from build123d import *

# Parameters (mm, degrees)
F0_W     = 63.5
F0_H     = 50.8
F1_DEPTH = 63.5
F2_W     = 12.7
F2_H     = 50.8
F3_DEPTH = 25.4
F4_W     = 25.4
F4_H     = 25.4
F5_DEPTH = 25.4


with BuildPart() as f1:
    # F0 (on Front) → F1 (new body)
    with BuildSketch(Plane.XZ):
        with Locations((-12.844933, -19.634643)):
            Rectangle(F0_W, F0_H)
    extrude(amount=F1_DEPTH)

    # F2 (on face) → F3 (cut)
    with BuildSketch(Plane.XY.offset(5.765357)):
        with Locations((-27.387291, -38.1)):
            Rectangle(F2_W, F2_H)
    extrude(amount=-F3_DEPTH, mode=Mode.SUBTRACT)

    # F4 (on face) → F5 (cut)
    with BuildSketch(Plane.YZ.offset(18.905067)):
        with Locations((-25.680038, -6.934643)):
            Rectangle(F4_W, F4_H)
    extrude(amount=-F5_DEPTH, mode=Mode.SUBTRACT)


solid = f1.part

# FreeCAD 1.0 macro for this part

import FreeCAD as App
import Part
import Sketcher

V = App.Vector
Q = App.Units.Quantity


def add_polygon(sketch, points):
    """Adds a closed chain of lines whose ends are joined by coincident constraints."""
    first, n = sketch.GeometryCount, len(points)
    for a, b in zip(points, points[1:] + points[:1]):
        sketch.addGeometry(Part.LineSegment(App.Vector(*a, 0), App.Vector(*b, 0)), False)
    for i in range(n):
        sketch.addConstraint(Sketcher.Constraint("Coincident", first + i, 2, first + (i + 1) % n, 1))

doc = App.newDocument("Part")
body = doc.addObject("PartDesign::Body", "Body")

sketch1 = doc.addObject("Sketcher::SketchObject", "Sketch")
body.addObject(sketch1)
sketch1.AttachmentSupport = (doc.XZ_Plane, [""])
sketch1.MapMode = "FlatFace"
add_polygon(sketch1, [(-45, 6), (-45, -45), (19, -45), (19, 6)])
sketch1.addConstraint([
    Sketcher.Constraint("Vertical", 0),
    Sketcher.Constraint("Horizontal", 1),
    Sketcher.Constraint("Vertical", 2),
    Sketcher.Constraint("Horizontal", 3),
    Sketcher.Constraint("DistanceY", 0, 2, 0, 1, Q("2 in")),
    Sketcher.Constraint("DistanceX", 1, 1, 1, 2, Q("2.5 in")),
    Sketcher.Constraint("DistanceX", 0, 2, -1, 1, 44.594933),
    Sketcher.Constraint("DistanceY", 0, 2, -1, 1, 45.034643),
])
pad1 = doc.addObject("PartDesign::Pad", "Pad")
body.addObject(pad1)
pad1.Profile = sketch1
pad1.Length = Q("2.5 in")

sketch2 = doc.addObject("Sketcher::SketchObject", "Sketch001")
body.addObject(sketch2)
sketch2.AttachmentSupport = (doc.XY_Plane, [""])
sketch2.MapMode = "FlatFace"
sketch2.AttachmentOffset = App.Placement(V(0, 0, 5.765357), App.Rotation())
add_polygon(sketch2, [(-34, -13), (-34, -64), (-21, -64), (-21, -13)])
sketch2.addConstraint([
    Sketcher.Constraint("Vertical", 0),
    Sketcher.Constraint("Horizontal", 1),
    Sketcher.Constraint("Vertical", 2),
    Sketcher.Constraint("Horizontal", 3),
    Sketcher.Constraint("DistanceY", 0, 2, 0, 1, Q("2 in")),
    Sketcher.Constraint("DistanceX", 1, 1, 1, 2, Q("0.5 in")),
    Sketcher.Constraint("DistanceY", 0, 2, -1, 1, Q("2.5 in")),
    Sketcher.Constraint("DistanceX", 0, 2, -1, 1, 33.737291),
])
pocket1 = doc.addObject("PartDesign::Pocket", "Pocket")
body.addObject(pocket1)
pocket1.Profile = sketch2
pocket1.Length = Q("1 in")

sketch3 = doc.addObject("Sketcher::SketchObject", "Sketch002")
body.addObject(sketch3)
sketch3.AttachmentSupport = (doc.YZ_Plane, [""])
sketch3.MapMode = "FlatFace"
sketch3.AttachmentOffset = App.Placement(V(0, 0, 18.905067), App.Rotation())
add_polygon(sketch3, [(-38, 6), (-38, -20), (-13, -20), (-13, 6)])
sketch3.addConstraint([
    Sketcher.Constraint("Vertical", 0),
    Sketcher.Constraint("Horizontal", 1),
    Sketcher.Constraint("Vertical", 2),
    Sketcher.Constraint("Horizontal", 3),
    Sketcher.Constraint("Equal", 3, 0),
    Sketcher.Constraint("DistanceX", 1, 1, 1, 2, Q("1 in")),
    Sketcher.Constraint("DistanceX", 0, 2, -1, 1, 38.380038),
    Sketcher.Constraint("DistanceY", 0, 2, -1, 1, 19.634643),
])
pocket2 = doc.addObject("PartDesign::Pocket", "Pocket001")
body.addObject(pocket2)
pocket2.Profile = sketch3
pocket2.Length = Q("1 in")

doc.recompute()
